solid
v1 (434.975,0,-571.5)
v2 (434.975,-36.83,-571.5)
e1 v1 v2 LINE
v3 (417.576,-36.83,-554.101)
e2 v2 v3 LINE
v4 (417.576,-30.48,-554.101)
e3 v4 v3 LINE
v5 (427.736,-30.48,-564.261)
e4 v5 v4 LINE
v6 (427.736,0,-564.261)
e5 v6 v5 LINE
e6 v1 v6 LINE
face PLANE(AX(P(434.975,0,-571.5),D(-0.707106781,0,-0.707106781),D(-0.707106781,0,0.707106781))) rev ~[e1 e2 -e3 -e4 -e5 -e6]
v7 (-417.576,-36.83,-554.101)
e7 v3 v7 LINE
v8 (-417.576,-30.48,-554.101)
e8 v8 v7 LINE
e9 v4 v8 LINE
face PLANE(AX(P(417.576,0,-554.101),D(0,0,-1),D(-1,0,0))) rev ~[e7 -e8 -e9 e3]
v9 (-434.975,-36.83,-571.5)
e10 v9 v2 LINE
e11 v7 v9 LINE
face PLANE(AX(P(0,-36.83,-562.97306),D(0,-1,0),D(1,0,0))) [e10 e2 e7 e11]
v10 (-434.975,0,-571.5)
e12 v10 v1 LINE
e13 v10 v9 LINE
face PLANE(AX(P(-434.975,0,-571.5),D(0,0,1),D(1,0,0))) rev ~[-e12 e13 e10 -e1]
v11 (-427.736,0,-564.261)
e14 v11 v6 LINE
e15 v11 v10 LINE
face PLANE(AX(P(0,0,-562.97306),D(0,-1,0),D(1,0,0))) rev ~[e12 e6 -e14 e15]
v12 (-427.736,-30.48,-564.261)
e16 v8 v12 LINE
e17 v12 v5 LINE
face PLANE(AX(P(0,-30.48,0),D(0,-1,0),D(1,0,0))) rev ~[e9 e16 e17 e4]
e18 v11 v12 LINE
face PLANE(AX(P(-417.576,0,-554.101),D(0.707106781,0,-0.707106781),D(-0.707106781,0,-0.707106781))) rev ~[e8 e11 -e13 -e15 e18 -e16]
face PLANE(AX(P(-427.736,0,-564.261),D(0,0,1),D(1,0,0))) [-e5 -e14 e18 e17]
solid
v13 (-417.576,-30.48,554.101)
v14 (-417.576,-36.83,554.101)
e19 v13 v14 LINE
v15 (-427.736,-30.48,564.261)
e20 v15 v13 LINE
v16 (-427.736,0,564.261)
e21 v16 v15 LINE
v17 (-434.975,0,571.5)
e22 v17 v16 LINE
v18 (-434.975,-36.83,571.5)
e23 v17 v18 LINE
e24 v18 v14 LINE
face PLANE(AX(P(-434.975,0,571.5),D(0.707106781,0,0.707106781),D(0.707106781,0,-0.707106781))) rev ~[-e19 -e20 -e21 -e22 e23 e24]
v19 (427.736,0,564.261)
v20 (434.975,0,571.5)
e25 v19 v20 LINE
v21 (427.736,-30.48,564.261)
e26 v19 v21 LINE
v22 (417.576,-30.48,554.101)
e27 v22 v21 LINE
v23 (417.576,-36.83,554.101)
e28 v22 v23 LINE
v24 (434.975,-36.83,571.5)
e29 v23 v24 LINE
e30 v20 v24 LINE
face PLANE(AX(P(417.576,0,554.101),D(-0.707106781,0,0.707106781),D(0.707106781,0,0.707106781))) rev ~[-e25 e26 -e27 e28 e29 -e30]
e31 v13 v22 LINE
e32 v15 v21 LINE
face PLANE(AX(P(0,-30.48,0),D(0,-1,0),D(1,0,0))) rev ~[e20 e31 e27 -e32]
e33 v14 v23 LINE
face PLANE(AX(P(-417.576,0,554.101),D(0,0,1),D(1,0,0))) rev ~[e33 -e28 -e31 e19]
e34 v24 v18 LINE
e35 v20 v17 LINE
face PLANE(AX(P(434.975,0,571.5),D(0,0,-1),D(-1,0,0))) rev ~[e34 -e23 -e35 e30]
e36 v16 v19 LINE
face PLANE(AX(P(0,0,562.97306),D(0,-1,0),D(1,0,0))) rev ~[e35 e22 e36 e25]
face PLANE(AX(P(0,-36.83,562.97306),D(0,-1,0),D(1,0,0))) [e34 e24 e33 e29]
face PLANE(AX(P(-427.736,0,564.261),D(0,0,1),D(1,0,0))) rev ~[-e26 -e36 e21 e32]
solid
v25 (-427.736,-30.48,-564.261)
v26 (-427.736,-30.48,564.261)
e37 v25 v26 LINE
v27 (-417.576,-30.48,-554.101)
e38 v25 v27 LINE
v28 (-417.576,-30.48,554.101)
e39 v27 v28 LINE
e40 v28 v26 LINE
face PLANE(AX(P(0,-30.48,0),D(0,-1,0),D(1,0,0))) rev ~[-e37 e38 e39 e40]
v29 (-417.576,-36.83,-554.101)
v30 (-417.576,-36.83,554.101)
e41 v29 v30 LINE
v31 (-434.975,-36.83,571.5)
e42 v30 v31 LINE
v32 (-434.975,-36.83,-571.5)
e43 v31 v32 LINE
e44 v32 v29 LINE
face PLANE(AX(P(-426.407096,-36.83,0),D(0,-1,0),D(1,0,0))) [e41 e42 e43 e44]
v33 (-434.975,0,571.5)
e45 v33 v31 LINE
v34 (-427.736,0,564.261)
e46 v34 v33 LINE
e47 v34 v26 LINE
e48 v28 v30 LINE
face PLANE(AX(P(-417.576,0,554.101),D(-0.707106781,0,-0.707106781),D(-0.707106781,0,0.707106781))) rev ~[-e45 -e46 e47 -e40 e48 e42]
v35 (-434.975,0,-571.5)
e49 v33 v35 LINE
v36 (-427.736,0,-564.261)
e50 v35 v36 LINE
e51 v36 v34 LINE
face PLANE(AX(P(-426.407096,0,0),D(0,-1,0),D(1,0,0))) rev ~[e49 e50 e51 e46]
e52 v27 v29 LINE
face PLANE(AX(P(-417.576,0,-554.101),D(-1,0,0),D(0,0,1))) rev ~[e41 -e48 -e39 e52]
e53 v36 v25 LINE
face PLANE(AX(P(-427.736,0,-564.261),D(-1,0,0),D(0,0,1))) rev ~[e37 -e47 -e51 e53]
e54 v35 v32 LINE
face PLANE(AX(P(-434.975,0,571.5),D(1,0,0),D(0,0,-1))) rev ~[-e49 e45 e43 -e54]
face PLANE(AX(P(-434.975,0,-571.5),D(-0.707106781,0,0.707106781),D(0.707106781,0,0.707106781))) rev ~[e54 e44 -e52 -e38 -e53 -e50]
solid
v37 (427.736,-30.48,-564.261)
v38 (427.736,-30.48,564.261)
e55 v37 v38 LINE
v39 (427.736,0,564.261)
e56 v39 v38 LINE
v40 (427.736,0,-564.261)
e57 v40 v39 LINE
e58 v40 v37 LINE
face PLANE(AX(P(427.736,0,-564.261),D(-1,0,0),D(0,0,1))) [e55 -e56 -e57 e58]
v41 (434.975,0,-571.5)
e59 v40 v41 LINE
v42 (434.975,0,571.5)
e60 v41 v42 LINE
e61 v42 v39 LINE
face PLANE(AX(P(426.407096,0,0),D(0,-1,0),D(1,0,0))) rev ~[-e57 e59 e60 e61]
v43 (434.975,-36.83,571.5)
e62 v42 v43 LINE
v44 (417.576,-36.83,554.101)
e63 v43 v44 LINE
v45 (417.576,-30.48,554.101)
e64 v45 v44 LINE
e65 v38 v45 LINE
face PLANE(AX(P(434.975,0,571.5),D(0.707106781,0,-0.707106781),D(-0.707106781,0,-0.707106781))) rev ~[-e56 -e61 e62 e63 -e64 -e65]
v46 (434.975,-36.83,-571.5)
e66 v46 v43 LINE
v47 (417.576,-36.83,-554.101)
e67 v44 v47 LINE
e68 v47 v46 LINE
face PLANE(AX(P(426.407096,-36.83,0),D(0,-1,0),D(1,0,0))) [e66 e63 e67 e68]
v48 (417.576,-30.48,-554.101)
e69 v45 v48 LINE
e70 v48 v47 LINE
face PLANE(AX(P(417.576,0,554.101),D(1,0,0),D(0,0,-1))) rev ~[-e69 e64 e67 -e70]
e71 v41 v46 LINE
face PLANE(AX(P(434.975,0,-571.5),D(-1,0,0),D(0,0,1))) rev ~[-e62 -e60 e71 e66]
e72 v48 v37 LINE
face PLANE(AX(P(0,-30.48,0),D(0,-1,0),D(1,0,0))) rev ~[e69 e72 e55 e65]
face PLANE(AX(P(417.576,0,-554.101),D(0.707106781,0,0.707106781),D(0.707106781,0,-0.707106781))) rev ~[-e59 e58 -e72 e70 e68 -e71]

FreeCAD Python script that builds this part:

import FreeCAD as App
import Part
import Sketcher
Q = App.Units.Quantity


def add_polygon(sketch, points):
    """Adds a closed chain of lines whose ends are joined by coincident constraints."""
    first, n = sketch.GeometryCount, len(points)
    for a, b in zip(points, points[1:] + points[:1]):
        sketch.addGeometry(Part.LineSegment(App.Vector(*a, 0), App.Vector(*b, 0)), False)
    for i in range(n):
        sketch.addConstraint(Sketcher.Constraint("Coincident", first + i, 2, first + (i + 1) % n, 1))

doc = App.newDocument("Part")
body = doc.addObject("PartDesign::Body", "Body")
body.AllowCompound = True

sketch1 = doc.addObject("Sketcher::SketchObject", "Sketch")
body.addObject(sketch1)
sketch1.AttachmentSupport = (doc.XZ_Plane, [""])
sketch1.MapMode = "FlatFace"
add_polygon(sketch1, [(-435, 572), (-435, -572), (-418, -554), (-418, 554)])
add_polygon(sketch1, [(418, -554), (435, -572), (435, 572), (418, 554)])
sketch1.addConstraint(Sketcher.Constraint("Vertical", 0))
sketch1.addConstraint(Sketcher.Constraint("Vertical", 2))
sketch1.addConstraint(Sketcher.Constraint("Vertical", 5))
sketch1.addConstraint(Sketcher.Constraint("Vertical", 7))
sketch1.addConstraint(Sketcher.Constraint("Symmetric", 3, 2, 4, 2, -1, 1))
sketch1.addConstraint(Sketcher.Constraint("Symmetric", 1, 2, 6, 2, -1, 1))
sketch1.addConstraint(Sketcher.Constraint("Perpendicular", 1, 3))
sketch1.addConstraint(Sketcher.Constraint("Parallel", 3, 4))
sketch1.addConstraint(Sketcher.Constraint("Perpendicular", 4, 6))
sketch1.addConstraint(Sketcher.Constraint("Horizontal", 0, 2, 4, 2))
sketch1.addConstraint(Sketcher.Constraint("Horizontal", 2, 2, 6, 2))
sketch1.addConstraint(Sketcher.Constraint("DistanceY", 0, 2, 0, 1, Q("45 in")))
sketch1.addConstraint(Sketcher.Constraint("DistanceY", 2, 1, 2, 2, Q("43.63 in")))
sketch1.addConstraint(Sketcher.Constraint("DistanceX", 1, 2, -1, 1, Q("16.44 in")))
pad1 = doc.addObject("PartDesign::Pad", "Pad")
body.addObject(pad1)
pad1.Profile = sketch1
pad1.Length = Q("1.45 in")
body2 = doc.addObject("PartDesign::Body", "Body001")
body2.AllowCompound = True

sketch2 = doc.addObject("Sketcher::SketchObject", "Sketch001")
body2.addObject(sketch2)
sketch2.AttachmentSupport = (doc.getObject("XZ_Plane001"), [""])
sketch2.MapMode = "FlatFace"
add_polygon(sketch2, [(435, 572), (-435, 572), (-418, 554), (418, 554)])
add_polygon(sketch2, [(-418, -554), (-435, -572), (435, -572), (418, -554)])
sketch2.addConstraint(Sketcher.Constraint("Horizontal", 0))
sketch2.addConstraint(Sketcher.Constraint("Horizontal", 2))
sketch2.addConstraint(Sketcher.Constraint("Horizontal", 5))
sketch2.addConstraint(Sketcher.Constraint("Horizontal", 7))
sketch2.addConstraint(Sketcher.Constraint("Symmetric", 3, 2, 4, 2, -1, 1))
sketch2.addConstraint(Sketcher.Constraint("Symmetric", 1, 2, 6, 2, -1, 1))
sketch2.addConstraint(Sketcher.Constraint("Perpendicular", 1, 3))
sketch2.addConstraint(Sketcher.Constraint("Parallel", 3, 4))
sketch2.addConstraint(Sketcher.Constraint("Perpendicular", 4, 6))
sketch2.addConstraint(Sketcher.Constraint("Vertical", 0, 2, 4, 2))
sketch2.addConstraint(Sketcher.Constraint("Vertical", 2, 2, 6, 2))
sketch2.addConstraint(Sketcher.Constraint("DistanceY", 4, 2, 0, 2, Q("45 in")))
sketch2.addConstraint(Sketcher.Constraint("DistanceX", 0, 2, 0, 1, Q("34.25 in")))
sketch2.addConstraint(Sketcher.Constraint("DistanceX", 2, 1, 2, 2, Q("32.88 in")))
pad2 = doc.addObject("PartDesign::Pad", "Pad001")
body2.addObject(pad2)
pad2.Profile = sketch2
pad2.Length = Q("1.45 in")
body3 = doc.addObject("PartDesign::Body", "Body002")

sketch3 = doc.addObject("Sketcher::SketchObject", "Sketch002")
body3.addObject(sketch3)
sketch3.AttachmentSupport = (doc.getObject("XZ_Plane002"), [""])
sketch3.MapMode = "FlatFace"
add_polygon(sketch3, [(-428, 564), (-428, -564), (428, -564), (428, 564)])
sketch3.addConstraint(Sketcher.Constraint("Vertical", 0))
sketch3.addConstraint(Sketcher.Constraint("Horizontal", 1))
sketch3.addConstraint(Sketcher.Constraint("Vertical", 2))
sketch3.addConstraint(Sketcher.Constraint("Horizontal", 3))
sketch3.addConstraint(Sketcher.Constraint("Symmetric", 0, 2, 2, 2, -1, 1))
sketch3.addConstraint(Sketcher.Constraint("DistanceX", 1, 1, 1, 2, Q("33.68 in")))
sketch3.addConstraint(Sketcher.Constraint("DistanceY", 0, 2, 0, 1, Q("44.43 in")))
pad3 = doc.addObject("PartDesign::Pad", "Pad002")
body3.addObject(pad3)
pad3.Profile = sketch3
pad3.Length = Q("1.2 in")
body.AllowCompound = True
doc.recompute()

body4 = doc.addObject("PartDesign::Body", "Body003")
body4.BaseFeature = body3
boolean = doc.addObject("PartDesign::Boolean", "Boolean")
body.addObject(boolean)
boolean.Type = "Cut"
boolean.addObjects([body4])
doc.recompute()
body2.AllowCompound = True
doc.recompute()

boolean2 = doc.addObject("PartDesign::Boolean", "Boolean001")
body2.addObject(boolean2)
boolean2.Type = "Cut"
boolean2.addObjects([body3])

doc.recompute()
